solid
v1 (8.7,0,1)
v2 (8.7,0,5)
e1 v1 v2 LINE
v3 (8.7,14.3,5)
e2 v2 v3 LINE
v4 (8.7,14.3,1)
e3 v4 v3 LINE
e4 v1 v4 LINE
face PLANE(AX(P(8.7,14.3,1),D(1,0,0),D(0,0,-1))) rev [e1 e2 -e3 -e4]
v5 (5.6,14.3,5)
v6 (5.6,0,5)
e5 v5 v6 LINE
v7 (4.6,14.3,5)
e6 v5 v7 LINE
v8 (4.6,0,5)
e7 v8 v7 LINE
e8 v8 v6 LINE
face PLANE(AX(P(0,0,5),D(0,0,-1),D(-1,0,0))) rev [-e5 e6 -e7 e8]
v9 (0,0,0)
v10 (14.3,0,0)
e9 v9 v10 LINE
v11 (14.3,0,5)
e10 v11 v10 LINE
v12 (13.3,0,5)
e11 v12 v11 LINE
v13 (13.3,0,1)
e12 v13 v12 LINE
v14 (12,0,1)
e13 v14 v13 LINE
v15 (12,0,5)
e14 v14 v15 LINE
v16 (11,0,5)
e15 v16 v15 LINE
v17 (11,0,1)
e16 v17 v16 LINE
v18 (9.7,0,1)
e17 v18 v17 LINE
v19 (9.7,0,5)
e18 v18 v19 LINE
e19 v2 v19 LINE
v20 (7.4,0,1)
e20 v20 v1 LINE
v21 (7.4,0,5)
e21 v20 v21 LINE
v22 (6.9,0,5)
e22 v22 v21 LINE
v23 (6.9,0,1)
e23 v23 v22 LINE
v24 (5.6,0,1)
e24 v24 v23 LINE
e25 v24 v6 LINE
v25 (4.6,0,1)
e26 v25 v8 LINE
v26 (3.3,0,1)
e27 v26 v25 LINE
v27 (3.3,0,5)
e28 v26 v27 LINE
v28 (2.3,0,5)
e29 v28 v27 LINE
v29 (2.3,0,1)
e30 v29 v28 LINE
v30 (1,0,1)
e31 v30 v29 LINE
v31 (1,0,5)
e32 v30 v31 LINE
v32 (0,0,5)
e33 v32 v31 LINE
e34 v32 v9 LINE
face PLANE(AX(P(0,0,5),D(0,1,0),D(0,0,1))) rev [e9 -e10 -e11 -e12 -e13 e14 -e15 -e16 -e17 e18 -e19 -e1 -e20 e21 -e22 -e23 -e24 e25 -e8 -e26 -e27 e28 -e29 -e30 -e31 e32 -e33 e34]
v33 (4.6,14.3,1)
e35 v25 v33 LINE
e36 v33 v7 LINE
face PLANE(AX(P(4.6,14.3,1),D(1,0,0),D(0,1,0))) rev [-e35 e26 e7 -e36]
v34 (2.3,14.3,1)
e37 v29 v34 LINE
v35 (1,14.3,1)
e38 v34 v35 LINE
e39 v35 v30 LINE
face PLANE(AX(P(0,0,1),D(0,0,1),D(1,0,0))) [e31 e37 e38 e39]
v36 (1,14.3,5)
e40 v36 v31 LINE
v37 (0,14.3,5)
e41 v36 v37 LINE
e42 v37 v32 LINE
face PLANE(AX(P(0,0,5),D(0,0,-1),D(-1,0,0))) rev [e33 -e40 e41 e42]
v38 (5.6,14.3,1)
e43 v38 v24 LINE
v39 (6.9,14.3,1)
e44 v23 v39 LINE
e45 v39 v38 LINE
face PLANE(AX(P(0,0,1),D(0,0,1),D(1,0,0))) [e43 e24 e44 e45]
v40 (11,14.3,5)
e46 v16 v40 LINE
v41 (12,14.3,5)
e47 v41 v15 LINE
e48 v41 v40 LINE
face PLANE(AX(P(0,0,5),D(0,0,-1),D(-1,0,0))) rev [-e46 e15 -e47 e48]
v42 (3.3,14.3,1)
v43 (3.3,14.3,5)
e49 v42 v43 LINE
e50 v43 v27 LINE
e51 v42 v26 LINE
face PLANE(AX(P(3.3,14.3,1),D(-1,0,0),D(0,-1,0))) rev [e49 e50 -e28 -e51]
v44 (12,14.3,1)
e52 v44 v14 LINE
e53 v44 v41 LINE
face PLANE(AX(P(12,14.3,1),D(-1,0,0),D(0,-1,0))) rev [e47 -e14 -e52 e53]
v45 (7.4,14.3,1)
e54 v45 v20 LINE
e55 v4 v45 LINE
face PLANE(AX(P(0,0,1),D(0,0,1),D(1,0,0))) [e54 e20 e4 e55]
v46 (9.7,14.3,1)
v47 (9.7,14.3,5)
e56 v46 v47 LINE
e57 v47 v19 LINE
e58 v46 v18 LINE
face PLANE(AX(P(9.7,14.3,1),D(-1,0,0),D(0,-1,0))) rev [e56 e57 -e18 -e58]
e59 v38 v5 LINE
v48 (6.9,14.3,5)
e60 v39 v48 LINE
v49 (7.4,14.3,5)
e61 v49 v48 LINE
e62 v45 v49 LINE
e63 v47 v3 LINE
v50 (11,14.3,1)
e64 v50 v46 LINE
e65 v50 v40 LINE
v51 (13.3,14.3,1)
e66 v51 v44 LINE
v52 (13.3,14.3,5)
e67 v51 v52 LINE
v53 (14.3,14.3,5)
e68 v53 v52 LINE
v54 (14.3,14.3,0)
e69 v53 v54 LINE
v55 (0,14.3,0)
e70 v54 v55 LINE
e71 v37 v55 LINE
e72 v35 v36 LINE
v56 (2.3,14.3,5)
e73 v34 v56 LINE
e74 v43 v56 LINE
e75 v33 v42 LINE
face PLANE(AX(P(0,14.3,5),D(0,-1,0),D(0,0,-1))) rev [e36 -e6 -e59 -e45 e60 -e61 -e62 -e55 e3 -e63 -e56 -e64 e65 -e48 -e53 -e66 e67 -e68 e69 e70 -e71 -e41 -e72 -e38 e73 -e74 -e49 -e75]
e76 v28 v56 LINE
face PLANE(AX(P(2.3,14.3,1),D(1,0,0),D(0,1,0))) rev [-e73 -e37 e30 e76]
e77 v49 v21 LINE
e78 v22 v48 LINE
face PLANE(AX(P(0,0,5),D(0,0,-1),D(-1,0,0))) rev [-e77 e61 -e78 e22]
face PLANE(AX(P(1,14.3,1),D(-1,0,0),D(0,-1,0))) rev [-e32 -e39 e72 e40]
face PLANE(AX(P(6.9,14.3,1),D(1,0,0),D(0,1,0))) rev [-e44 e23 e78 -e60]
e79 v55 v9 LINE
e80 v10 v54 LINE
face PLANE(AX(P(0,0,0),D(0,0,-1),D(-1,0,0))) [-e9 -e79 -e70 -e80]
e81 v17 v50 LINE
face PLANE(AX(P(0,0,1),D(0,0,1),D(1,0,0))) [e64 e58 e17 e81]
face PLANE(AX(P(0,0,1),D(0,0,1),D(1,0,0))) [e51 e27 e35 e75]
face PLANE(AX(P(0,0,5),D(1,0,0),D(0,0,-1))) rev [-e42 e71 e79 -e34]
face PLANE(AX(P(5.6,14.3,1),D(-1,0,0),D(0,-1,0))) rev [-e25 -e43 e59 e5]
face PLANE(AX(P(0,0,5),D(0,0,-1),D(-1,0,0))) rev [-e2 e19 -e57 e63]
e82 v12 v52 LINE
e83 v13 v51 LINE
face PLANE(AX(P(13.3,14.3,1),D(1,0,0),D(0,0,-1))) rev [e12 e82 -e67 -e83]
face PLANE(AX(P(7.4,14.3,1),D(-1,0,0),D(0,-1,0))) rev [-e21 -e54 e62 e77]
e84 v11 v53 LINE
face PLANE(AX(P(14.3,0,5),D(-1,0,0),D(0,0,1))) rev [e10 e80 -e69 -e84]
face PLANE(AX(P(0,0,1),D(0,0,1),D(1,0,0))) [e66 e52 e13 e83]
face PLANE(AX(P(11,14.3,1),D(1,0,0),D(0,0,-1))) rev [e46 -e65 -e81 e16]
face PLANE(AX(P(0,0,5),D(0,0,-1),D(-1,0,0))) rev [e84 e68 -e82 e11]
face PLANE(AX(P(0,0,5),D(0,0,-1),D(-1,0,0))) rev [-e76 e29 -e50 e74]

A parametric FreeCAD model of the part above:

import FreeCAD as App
import Part
import Sketcher

V = App.Vector
Q = App.Units.Quantity

doc = App.newDocument("Part")
params = doc.addObject("Spreadsheet::Sheet", "Params")
for row, (alias, value) in enumerate([
    ("sketch1_width", "14.3 mm"),
    ("pad1_length", "5 mm"),
    ("sketch2_width", "1.3 mm"),
    ("sketch2_height", "14.3 mm"),
    ("pocket1_length", "4 mm"),
], start=1):
    params.set(f"A{row}", alias)
    params.set(f"B{row}", "=" + value)
    params.setAlias(f"B{row}", alias)

body = doc.addObject("PartDesign::Body", "Body")

# Sketch on XY plane
sketch1 = body.newObject("Sketcher::SketchObject", "Sketch")
sketch1.AttachmentSupport = (doc.getObject("XY_Plane"), [""])
sketch1.MapMode = "FlatFace"
sketch1.addGeometry([
    Part.LineSegment(V(0, 14, 0), V(0, 0, 0)),
    Part.LineSegment(V(0, 0, 0), V(14, 0, 0)),
    Part.LineSegment(V(14, 0, 0), V(14, 14, 0)),
    Part.LineSegment(V(14, 14, 0), V(0, 14, 0)),
], False)
sketch1.addConstraint([
    Sketcher.Constraint("Coincident", 0, 2, 1, 1),
    Sketcher.Constraint("Coincident", 1, 2, 2, 1),
    Sketcher.Constraint("Coincident", 2, 2, 3, 1),
    Sketcher.Constraint("Coincident", 3, 2, 0, 1),
    Sketcher.Constraint("Vertical", 0),
    Sketcher.Constraint("Horizontal", 1),
    Sketcher.Constraint("Vertical", 2),
    Sketcher.Constraint("Horizontal", 3),
    Sketcher.Constraint("Coincident", 0, 2, -1, 1),
    Sketcher.Constraint("Equal", 3, 0),
    Sketcher.Constraint("DistanceX", 1, 1, 1, 2, Q("14.3 mm")),
])
sketch1.setExpression("Constraints[10]", "Params.sketch1_width")
pad1 = body.newObject("PartDesign::Pad", "Pad")
pad1.Profile = sketch1
pad1.setExpression("Length", "Params.pad1_length")

# Sketch on XY plane
sketch2 = body.newObject("Sketcher::SketchObject", "Sketch001")
sketch2.AttachmentSupport = (doc.getObject("XY_Plane"), [""])
sketch2.MapMode = "FlatFace"
sketch2.AttachmentOffset = App.Placement(V(0, 0, 5), App.Rotation())
sketch2.addGeometry([
    Part.LineSegment(V(1, 14.3, 0), V(1, 0, 0)),  # 0
    Part.LineSegment(V(1, 0, 0), V(2.3, 0, 0)),  # 1
    Part.LineSegment(V(2.3, 0, 0), V(2.3, 14.3, 0)),  # 2
    Part.LineSegment(V(2.3, 14.3, 0), V(1, 14.3, 0)),  # 3
    Part.LineSegment(V(7.4, 14.3, 0), V(7.4, 0, 0)),  # 4
    Part.LineSegment(V(7.4, 0, 0), V(8.7, 0, 0)),  # 5
    Part.LineSegment(V(8.7, 0, 0), V(8.7, 14.3, 0)),  # 6
    Part.LineSegment(V(8.7, 14.3, 0), V(7.4, 14.3, 0)),  # 7
    Part.LineSegment(V(3.3, 14.3, 0), V(3.3, 0, 0)),  # 8
    Part.LineSegment(V(3.3, 0, 0), V(4.6, 0, 0)),  # 9
    Part.LineSegment(V(4.6, 0, 0), V(4.6, 14.3, 0)),  # 10
    Part.LineSegment(V(4.6, 14.3, 0), V(3.3, 14.3, 0)),  # 11
    Part.LineSegment(V(5.6, 14.3, 0), V(5.6, 0, 0)),  # 12
    Part.LineSegment(V(5.6, 0, 0), V(6.9, 0, 0)),  # 13
    Part.LineSegment(V(6.9, 0, 0), V(6.9, 14.3, 0)),  # 14
    Part.LineSegment(V(6.9, 14.3, 0), V(5.6, 14.3, 0)),  # 15
    Part.LineSegment(V(9.7, 14.3, 0), V(9.7, 0, 0)),  # 16
    Part.LineSegment(V(9.7, 0, 0), V(11, 0, 0)),  # 17
    Part.LineSegment(V(11, 0, 0), V(11, 14.3, 0)),  # 18
    Part.LineSegment(V(11, 14.3, 0), V(9.7, 14.3, 0)),  # 19
    Part.LineSegment(V(12, 14.3, 0), V(12, 0, 0)),  # 20
    Part.LineSegment(V(12, 0, 0), V(13.3, 0, 0)),  # 21
    Part.LineSegment(V(13.3, 0, 0), V(13.3, 14.3, 0)),  # 22
    Part.LineSegment(V(13.3, 14.3, 0), V(12, 14.3, 0)),  # 23
], False)
sketch2.addConstraint([
    Sketcher.Constraint("Coincident", 0, 2, 1, 1),
    Sketcher.Constraint("Coincident", 1, 2, 2, 1),
    Sketcher.Constraint("Coincident", 2, 2, 3, 1),
    Sketcher.Constraint("Coincident", 3, 2, 0, 1),
    Sketcher.Constraint("Coincident", 4, 2, 5, 1),
    Sketcher.Constraint("Coincident", 5, 2, 6, 1),
    Sketcher.Constraint("Coincident", 6, 2, 7, 1),
    Sketcher.Constraint("Coincident", 7, 2, 4, 1),
    Sketcher.Constraint("Coincident", 8, 2, 9, 1),
    Sketcher.Constraint("Coincident", 9, 2, 10, 1),
    Sketcher.Constraint("Coincident", 10, 2, 11, 1),
    Sketcher.Constraint("Coincident", 11, 2, 8, 1),
    Sketcher.Constraint("Coincident", 12, 2, 13, 1),
    Sketcher.Constraint("Coincident", 13, 2, 14, 1),
    Sketcher.Constraint("Coincident", 14, 2, 15, 1),
    Sketcher.Constraint("Coincident", 15, 2, 12, 1),
    Sketcher.Constraint("Coincident", 16, 2, 17, 1),
    Sketcher.Constraint("Coincident", 17, 2, 18, 1),
    Sketcher.Constraint("Coincident", 18, 2, 19, 1),
    Sketcher.Constraint("Coincident", 19, 2, 16, 1),
    Sketcher.Constraint("Coincident", 20, 2, 21, 1),
    Sketcher.Constraint("Coincident", 21, 2, 22, 1),
    Sketcher.Constraint("Coincident", 22, 2, 23, 1),
    Sketcher.Constraint("Coincident", 23, 2, 20, 1),
    Sketcher.Constraint("Vertical", 0),
    Sketcher.Constraint("Horizontal", 1),
    Sketcher.Constraint("Vertical", 2),
    Sketcher.Constraint("Horizontal", 3),
    Sketcher.Constraint("Vertical", 4),
    Sketcher.Constraint("Horizontal", 5),
    Sketcher.Constraint("Vertical", 6),
    Sketcher.Constraint("Horizontal", 7),
    Sketcher.Constraint("Vertical", 8),
    Sketcher.Constraint("Horizontal", 9),
    Sketcher.Constraint("Vertical", 10),
    Sketcher.Constraint("Horizontal", 11),
    Sketcher.Constraint("Vertical", 12),
    Sketcher.Constraint("Horizontal", 13),
    Sketcher.Constraint("Vertical", 14),
    Sketcher.Constraint("Horizontal", 15),
    Sketcher.Constraint("Vertical", 16),
    Sketcher.Constraint("Horizontal", 17),
    Sketcher.Constraint("Vertical", 18),
    Sketcher.Constraint("Horizontal", 19),
    Sketcher.Constraint("Vertical", 20),
    Sketcher.Constraint("Horizontal", 21),
    Sketcher.Constraint("Vertical", 22),
    Sketcher.Constraint("Horizontal", 23),
    Sketcher.Constraint("PointOnObject", 0, 2, -1),
    Sketcher.Constraint("PointOnObject", 4, 2, -1),
    Sketcher.Constraint("PointOnObject", 8, 2, -1),
    Sketcher.Constraint("PointOnObject", 12, 2, -1),
    Sketcher.Constraint("PointOnObject", 16, 2, -1),
    Sketcher.Constraint("PointOnObject", 20, 2, -1),
    Sketcher.Constraint("Horizontal", 3, 2, 6, 2),
    Sketcher.Constraint("Horizontal", 7, 2, 10, 2),
    Sketcher.Constraint("Horizontal", 11, 2, 14, 2),
    Sketcher.Constraint("Horizontal", 15, 2, 18, 2),
    Sketcher.Constraint("Horizontal", 19, 2, 22, 2),
    Sketcher.Constraint("Equal", 3, 5),
    Sketcher.Constraint("Equal", 7, 9),
    Sketcher.Constraint("Equal", 11, 13),
    Sketcher.Constraint("Equal", 15, 17),
    Sketcher.Constraint("Equal", 19, 21),
    Sketcher.Constraint("DistanceX", 1, 1, 1, 2, Q("1.3 mm")),
    Sketcher.Constraint("DistanceY", 0, 2, 0, 1, Q("14.3 mm")),
    Sketcher.Constraint("DistanceX", -1, 1, 0, 2, Q("1 mm")),
    Sketcher.Constraint("DistanceX", -1, 1, 17, 2, Q("11 mm")),
    Sketcher.Constraint("DistanceX", -1, 1, 20, 2, Q("12 mm")),
    Sketcher.Constraint("DistanceX", 1, 2, 8, 2, Q("1 mm")),
    Sketcher.Constraint("DistanceX", 9, 2, 12, 2, Q("1 mm")),
    Sketcher.Constraint("DistanceX", 5, 2, 16, 2, Q("1 mm")),
])
sketch2.setExpression("Constraints[64]", "Params.sketch2_width")
sketch2.setExpression("Constraints[65]", "Params.sketch2_height")
pocket1 = body.newObject("PartDesign::Pocket", "Pocket")
pocket1.Profile = sketch2
pocket1.setExpression("Length", "Params.pocket1_length")

doc.recompute()
